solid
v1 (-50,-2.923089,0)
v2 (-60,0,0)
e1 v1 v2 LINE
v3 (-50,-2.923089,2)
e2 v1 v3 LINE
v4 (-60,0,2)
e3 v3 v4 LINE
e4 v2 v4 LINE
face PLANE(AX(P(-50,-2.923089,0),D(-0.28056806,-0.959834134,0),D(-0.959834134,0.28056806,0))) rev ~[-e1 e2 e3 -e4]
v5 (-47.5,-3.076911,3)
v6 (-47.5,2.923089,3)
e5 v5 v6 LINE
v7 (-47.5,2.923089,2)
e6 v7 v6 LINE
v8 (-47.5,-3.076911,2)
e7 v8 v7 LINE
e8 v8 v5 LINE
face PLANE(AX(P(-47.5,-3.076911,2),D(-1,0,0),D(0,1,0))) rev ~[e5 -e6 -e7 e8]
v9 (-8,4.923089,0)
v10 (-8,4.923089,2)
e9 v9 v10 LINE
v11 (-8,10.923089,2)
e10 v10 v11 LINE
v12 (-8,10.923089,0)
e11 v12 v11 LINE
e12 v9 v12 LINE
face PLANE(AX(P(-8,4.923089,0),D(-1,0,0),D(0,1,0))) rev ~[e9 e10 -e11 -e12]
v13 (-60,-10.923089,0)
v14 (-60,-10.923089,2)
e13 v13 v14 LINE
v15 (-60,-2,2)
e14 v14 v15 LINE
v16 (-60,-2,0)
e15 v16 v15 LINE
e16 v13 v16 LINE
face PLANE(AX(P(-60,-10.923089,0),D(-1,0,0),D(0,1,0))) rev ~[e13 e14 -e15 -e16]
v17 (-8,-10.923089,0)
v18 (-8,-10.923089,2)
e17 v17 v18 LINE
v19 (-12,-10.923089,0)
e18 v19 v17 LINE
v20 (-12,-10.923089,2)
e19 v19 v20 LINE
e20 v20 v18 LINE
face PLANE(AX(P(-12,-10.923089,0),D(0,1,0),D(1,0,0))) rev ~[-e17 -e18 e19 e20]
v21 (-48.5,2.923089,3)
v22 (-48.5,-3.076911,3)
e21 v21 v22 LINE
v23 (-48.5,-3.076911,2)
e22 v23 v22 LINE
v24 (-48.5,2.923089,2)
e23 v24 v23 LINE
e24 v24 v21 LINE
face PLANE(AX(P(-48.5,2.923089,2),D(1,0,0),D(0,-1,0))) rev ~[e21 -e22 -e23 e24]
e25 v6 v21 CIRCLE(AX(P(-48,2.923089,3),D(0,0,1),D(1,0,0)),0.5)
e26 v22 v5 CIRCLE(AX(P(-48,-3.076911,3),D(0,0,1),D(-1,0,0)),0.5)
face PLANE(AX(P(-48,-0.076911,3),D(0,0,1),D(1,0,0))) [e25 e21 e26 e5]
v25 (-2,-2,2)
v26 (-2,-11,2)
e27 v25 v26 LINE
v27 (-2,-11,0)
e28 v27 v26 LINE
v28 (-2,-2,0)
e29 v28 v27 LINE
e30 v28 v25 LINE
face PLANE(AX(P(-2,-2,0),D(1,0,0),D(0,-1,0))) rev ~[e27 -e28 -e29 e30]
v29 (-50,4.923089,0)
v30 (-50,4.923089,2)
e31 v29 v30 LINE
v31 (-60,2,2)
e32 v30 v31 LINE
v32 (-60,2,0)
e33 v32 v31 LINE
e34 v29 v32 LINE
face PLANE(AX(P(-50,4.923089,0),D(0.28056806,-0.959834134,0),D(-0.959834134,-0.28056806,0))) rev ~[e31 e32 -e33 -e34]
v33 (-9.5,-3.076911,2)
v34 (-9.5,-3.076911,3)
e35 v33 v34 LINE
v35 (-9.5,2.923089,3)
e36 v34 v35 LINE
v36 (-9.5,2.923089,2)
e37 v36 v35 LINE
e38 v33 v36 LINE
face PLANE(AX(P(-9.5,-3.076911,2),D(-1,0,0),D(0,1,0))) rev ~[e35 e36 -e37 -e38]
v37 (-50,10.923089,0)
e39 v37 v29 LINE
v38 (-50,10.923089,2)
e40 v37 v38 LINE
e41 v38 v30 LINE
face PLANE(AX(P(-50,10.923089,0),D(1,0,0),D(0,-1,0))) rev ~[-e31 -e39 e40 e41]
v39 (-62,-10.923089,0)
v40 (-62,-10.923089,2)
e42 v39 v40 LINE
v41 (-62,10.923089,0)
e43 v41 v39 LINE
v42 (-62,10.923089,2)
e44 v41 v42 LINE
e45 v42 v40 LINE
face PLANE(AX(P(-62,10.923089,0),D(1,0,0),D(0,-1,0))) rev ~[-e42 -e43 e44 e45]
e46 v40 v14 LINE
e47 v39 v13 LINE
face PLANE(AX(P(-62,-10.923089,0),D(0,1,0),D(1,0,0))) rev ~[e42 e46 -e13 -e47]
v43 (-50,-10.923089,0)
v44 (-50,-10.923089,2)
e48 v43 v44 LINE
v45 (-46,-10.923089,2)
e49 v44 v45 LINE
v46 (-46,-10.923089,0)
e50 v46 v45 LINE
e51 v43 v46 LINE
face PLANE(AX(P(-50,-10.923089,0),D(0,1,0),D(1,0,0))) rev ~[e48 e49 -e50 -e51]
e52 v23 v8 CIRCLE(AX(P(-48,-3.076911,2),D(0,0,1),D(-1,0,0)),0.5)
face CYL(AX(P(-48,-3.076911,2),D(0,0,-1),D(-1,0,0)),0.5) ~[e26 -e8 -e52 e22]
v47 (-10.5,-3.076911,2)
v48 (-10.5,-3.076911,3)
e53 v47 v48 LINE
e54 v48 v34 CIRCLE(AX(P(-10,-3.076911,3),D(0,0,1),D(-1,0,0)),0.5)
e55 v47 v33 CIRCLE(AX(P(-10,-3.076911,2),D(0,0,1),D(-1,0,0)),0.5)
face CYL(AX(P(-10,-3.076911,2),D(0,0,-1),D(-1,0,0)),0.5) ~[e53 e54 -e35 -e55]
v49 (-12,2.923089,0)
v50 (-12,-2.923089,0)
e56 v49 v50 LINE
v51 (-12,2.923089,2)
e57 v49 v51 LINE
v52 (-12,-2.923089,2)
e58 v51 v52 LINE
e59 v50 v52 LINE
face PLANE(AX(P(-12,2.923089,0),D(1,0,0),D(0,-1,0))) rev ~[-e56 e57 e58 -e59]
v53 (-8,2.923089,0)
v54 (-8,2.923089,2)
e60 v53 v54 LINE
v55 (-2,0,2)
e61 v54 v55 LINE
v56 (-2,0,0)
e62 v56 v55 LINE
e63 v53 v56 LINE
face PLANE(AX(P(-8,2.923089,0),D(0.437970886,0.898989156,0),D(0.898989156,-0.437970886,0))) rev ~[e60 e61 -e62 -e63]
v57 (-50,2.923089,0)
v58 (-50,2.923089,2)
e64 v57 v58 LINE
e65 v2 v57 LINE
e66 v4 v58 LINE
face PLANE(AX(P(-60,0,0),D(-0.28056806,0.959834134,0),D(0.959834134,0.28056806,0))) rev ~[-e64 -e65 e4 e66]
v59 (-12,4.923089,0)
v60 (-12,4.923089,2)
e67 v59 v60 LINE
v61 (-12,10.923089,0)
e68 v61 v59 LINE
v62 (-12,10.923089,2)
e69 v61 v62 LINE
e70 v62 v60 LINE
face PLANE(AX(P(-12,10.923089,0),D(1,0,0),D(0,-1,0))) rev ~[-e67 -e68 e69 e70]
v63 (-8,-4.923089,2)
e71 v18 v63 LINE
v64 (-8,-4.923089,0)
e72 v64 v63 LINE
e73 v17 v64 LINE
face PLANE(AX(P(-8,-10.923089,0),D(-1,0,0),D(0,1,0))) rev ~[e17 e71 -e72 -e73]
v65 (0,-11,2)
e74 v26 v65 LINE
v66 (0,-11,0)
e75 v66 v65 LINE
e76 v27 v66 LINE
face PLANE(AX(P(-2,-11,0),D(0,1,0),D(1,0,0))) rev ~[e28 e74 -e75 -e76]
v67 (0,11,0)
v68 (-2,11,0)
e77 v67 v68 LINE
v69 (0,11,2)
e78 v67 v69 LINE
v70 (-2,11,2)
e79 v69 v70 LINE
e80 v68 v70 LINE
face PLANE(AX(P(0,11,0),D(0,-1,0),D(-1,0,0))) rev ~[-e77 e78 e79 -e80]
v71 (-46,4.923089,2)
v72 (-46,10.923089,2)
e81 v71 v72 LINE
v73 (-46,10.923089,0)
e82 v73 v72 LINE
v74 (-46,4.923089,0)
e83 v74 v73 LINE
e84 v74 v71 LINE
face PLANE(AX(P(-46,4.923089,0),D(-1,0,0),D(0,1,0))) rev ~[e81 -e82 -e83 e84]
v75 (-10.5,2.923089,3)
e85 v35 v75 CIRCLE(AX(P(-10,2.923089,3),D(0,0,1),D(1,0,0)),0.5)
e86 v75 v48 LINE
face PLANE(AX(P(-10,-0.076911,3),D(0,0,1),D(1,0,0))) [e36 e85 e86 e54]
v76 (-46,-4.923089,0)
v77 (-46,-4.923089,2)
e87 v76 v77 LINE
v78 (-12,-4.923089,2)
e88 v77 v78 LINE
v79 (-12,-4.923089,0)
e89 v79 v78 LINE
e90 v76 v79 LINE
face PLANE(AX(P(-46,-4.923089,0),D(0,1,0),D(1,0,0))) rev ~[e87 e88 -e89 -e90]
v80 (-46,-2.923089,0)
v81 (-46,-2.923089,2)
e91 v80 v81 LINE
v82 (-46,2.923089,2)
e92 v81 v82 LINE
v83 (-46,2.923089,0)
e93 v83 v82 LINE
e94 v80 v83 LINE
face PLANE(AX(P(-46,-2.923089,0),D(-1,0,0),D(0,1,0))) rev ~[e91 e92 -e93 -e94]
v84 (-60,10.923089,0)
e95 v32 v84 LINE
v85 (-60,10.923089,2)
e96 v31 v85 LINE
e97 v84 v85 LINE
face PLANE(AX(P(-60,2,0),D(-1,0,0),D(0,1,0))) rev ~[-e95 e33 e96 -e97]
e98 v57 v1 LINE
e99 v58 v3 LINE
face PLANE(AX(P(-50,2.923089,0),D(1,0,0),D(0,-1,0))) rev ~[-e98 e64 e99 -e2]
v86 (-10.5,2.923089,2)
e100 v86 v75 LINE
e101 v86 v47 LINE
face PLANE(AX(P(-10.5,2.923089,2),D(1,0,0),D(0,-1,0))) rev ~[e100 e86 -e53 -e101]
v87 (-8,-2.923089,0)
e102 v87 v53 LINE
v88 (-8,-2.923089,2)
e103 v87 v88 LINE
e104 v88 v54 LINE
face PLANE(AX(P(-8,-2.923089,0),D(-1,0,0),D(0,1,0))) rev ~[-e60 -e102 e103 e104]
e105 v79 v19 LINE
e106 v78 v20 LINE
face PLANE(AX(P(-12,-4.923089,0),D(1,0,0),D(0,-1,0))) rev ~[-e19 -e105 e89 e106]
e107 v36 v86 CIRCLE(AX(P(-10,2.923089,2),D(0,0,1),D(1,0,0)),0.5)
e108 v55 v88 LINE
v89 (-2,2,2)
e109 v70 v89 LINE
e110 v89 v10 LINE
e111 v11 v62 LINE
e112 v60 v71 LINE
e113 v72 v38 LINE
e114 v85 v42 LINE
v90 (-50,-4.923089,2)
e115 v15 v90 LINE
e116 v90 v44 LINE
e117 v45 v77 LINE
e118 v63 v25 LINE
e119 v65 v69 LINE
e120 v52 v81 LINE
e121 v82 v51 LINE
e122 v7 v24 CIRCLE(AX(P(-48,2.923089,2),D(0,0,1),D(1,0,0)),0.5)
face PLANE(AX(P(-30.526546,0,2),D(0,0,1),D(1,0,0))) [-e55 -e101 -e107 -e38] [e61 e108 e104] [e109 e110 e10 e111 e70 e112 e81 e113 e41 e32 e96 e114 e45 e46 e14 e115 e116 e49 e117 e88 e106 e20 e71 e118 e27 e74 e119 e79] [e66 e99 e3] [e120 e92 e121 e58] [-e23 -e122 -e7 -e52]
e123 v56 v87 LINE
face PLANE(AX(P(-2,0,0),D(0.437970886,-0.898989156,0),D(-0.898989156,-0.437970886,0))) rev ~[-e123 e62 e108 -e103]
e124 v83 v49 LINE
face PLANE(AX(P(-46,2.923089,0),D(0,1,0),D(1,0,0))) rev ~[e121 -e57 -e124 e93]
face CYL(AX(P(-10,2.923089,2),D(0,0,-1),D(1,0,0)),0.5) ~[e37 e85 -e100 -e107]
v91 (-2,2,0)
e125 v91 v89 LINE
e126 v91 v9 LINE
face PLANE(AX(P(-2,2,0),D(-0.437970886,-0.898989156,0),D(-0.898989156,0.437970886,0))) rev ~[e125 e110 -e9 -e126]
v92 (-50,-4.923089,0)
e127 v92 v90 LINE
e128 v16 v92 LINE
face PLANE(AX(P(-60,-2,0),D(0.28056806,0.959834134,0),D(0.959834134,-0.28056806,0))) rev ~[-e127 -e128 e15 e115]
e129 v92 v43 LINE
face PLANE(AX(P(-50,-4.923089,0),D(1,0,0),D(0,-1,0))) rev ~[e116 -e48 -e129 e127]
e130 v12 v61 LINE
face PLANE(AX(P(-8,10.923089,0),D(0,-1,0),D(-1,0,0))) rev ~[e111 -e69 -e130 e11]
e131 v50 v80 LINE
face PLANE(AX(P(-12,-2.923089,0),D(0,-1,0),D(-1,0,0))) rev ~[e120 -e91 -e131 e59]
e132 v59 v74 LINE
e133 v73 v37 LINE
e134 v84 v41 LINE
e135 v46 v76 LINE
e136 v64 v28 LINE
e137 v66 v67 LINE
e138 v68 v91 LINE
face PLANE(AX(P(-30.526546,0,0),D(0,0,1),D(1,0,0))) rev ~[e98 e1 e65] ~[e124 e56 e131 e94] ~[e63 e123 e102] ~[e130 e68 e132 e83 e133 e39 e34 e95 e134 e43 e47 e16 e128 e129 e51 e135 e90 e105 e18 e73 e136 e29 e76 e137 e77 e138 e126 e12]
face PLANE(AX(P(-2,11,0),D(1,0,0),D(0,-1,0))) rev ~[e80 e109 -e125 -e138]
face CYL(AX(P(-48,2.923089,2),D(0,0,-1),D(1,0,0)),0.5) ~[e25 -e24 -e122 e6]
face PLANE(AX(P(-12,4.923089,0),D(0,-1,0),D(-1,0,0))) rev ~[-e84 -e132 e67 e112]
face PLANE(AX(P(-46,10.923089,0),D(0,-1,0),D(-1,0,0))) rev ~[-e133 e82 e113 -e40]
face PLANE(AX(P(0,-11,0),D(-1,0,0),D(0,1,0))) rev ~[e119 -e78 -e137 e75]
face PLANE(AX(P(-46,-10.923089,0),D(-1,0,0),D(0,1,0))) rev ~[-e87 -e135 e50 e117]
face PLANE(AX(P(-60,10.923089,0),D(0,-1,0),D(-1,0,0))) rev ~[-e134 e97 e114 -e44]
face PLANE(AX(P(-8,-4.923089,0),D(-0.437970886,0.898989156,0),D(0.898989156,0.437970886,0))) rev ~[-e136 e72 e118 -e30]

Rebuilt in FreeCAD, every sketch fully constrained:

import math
import FreeCAD as App
import Part
import Sketcher
from FreeCAD import Vector
Q = App.Units.Quantity

doc = App.newDocument("Part")
body = doc.addObject("PartDesign::Body", "Body")

# Sketch on XY plane
sketch1 = body.newObject("Sketcher::SketchObject", "Sketch")
sketch1.AttachmentSupport = (doc.getObject("XY_Plane"), [""])
sketch1.MapMode = "FlatFace"
sketch1.addGeometry([
    Part.LineSegment(Vector(0, -11, 0), Vector(0, 11, 0)),  # 0
    Part.LineSegment(Vector(0, 11, 0), Vector(-2, 11, 0)),  # 1
    Part.LineSegment(Vector(-2, 11, 0), Vector(-2, 2, 0)),  # 2
    Part.LineSegment(Vector(-2, 2, 0), Vector(-8, 4.923089, 0)),  # 3
    Part.LineSegment(Vector(-8, 4.923089, 0), Vector(-8, 10.923089, 0)),  # 4
    Part.LineSegment(Vector(-8, 10.923089, 0), Vector(-12, 10.923089, 0)),  # 5
    Part.LineSegment(Vector(-12, 10.923089, 0), Vector(-12, 4.923089, 0)),  # 6
    Part.LineSegment(Vector(-12, 4.923089, 0), Vector(-46, 4.923089, 0)),  # 7
    Part.LineSegment(Vector(-46, 4.923089, 0), Vector(-46, 10.923089, 0)),  # 8
    Part.LineSegment(Vector(-46, 10.923089, 0), Vector(-50, 10.923089, 0)),  # 9
    Part.LineSegment(Vector(-50, 10.923089, 0), Vector(-50, 4.923089, 0)),  # 10
    Part.LineSegment(Vector(-50, 4.923089, 0), Vector(-60, 2, 0)),  # 11
    Part.LineSegment(Vector(-60, 2, 0), Vector(-60, 10.923089, 0)),  # 12
    Part.LineSegment(Vector(-60, 10.923089, 0), Vector(-62, 10.923089, 0)),  # 13
    Part.LineSegment(Vector(-62, 10.923089, 0), Vector(-62, -10.923089, 0)),  # 14
    Part.LineSegment(Vector(-62, -10.923089, 0), Vector(-60, -10.923089, 0)),  # 15
    Part.LineSegment(Vector(-60, -10.923089, 0), Vector(-60, -2, 0)),  # 16
    Part.LineSegment(Vector(-60, -2, 0), Vector(-50, -4.923089, 0)),  # 17
    Part.LineSegment(Vector(-50, -4.923089, 0), Vector(-50, -10.923089, 0)),  # 18
    Part.LineSegment(Vector(-50, -10.923089, 0), Vector(-46, -10.923089, 0)),  # 19
    Part.LineSegment(Vector(-46, -10.923089, 0), Vector(-46, -4.923089, 0)),  # 20
    Part.LineSegment(Vector(-46, -4.923089, 0), Vector(-12, -4.923089, 0)),  # 21
    Part.LineSegment(Vector(-12, -4.923089, 0), Vector(-12, -10.923089, 0)),  # 22
    Part.LineSegment(Vector(-12, -10.923089, 0), Vector(-8, -10.923089, 0)),  # 23
    Part.LineSegment(Vector(-8, -10.923089, 0), Vector(-8, -4.923089, 0)),  # 24
    Part.LineSegment(Vector(-8, -4.923089, 0), Vector(-2, -2, 0)),  # 25
    Part.LineSegment(Vector(-2, -2, 0), Vector(-2, -11, 0)),  # 26
    Part.LineSegment(Vector(-2, -11, 0), Vector(0, -11, 0)),  # 27
    Part.LineSegment(Vector(-50, -2.923089, 0), Vector(-60, 0, 0)),  # 28
    Part.LineSegment(Vector(-60, 0, 0), Vector(-50, 2.923089, 0)),  # 29
    Part.LineSegment(Vector(-50, 2.923089, 0), Vector(-50, -2.923089, 0)),  # 30
    Part.LineSegment(Vector(-46, 2.923089, 0), Vector(-12, 2.923089, 0)),  # 31
    Part.LineSegment(Vector(-12, 2.923089, 0), Vector(-12, -2.923089, 0)),  # 32
    Part.LineSegment(Vector(-12, -2.923089, 0), Vector(-46, -2.923089, 0)),  # 33
    Part.LineSegment(Vector(-46, -2.923089, 0), Vector(-46, 2.923089, 0)),  # 34
    Part.LineSegment(Vector(-8, -2.923089, 0), Vector(-8, 2.923089, 0)),  # 35
    Part.LineSegment(Vector(-8, 2.923089, 0), Vector(-2, 0, 0)),  # 36
    Part.LineSegment(Vector(-2, 0, 0), Vector(-8, -2.923089, 0)),  # 37
], False)
sketch1.addConstraint([
    Sketcher.Constraint("Coincident", 0, 2, 1, 1),
    Sketcher.Constraint("Coincident", 1, 2, 2, 1),
    Sketcher.Constraint("Coincident", 2, 2, 3, 1),
    Sketcher.Constraint("Coincident", 3, 2, 4, 1),
    Sketcher.Constraint("Coincident", 4, 2, 5, 1),
    Sketcher.Constraint("Coincident", 5, 2, 6, 1),
    Sketcher.Constraint("Coincident", 6, 2, 7, 1),
    Sketcher.Constraint("Coincident", 7, 2, 8, 1),
    Sketcher.Constraint("Coincident", 8, 2, 9, 1),
    Sketcher.Constraint("Coincident", 9, 2, 10, 1),
    Sketcher.Constraint("Coincident", 10, 2, 11, 1),
    Sketcher.Constraint("Coincident", 11, 2, 12, 1),
    Sketcher.Constraint("Coincident", 12, 2, 13, 1),
    Sketcher.Constraint("Coincident", 13, 2, 14, 1),
    Sketcher.Constraint("Coincident", 14, 2, 15, 1),
    Sketcher.Constraint("Coincident", 15, 2, 16, 1),
    Sketcher.Constraint("Coincident", 16, 2, 17, 1),
    Sketcher.Constraint("Coincident", 17, 2, 18, 1),
    Sketcher.Constraint("Coincident", 18, 2, 19, 1),
    Sketcher.Constraint("Coincident", 19, 2, 20, 1),
    Sketcher.Constraint("Coincident", 20, 2, 21, 1),
    Sketcher.Constraint("Coincident", 21, 2, 22, 1),
    Sketcher.Constraint("Coincident", 22, 2, 23, 1),
    Sketcher.Constraint("Coincident", 23, 2, 24, 1),
    Sketcher.Constraint("Coincident", 24, 2, 25, 1),
    Sketcher.Constraint("Coincident", 25, 2, 26, 1),
    Sketcher.Constraint("Coincident", 26, 2, 27, 1),
    Sketcher.Constraint("Coincident", 27, 2, 0, 1),
    Sketcher.Constraint("Coincident", 28, 2, 29, 1),
    Sketcher.Constraint("Coincident", 29, 2, 30, 1),
    Sketcher.Constraint("Coincident", 30, 2, 28, 1),
    Sketcher.Constraint("Coincident", 31, 2, 32, 1),
    Sketcher.Constraint("Coincident", 32, 2, 33, 1),
    Sketcher.Constraint("Coincident", 33, 2, 34, 1),
    Sketcher.Constraint("Coincident", 34, 2, 31, 1),
    Sketcher.Constraint("Coincident", 35, 2, 36, 1),
    Sketcher.Constraint("Coincident", 36, 2, 37, 1),
    Sketcher.Constraint("Coincident", 37, 2, 35, 1),
    Sketcher.Constraint("Vertical", 0),
    Sketcher.Constraint("Horizontal", 1),
    Sketcher.Constraint("Vertical", 2),
    Sketcher.Constraint("Vertical", 4),
    Sketcher.Constraint("Horizontal", 5),
    Sketcher.Constraint("Vertical", 6),
    Sketcher.Constraint("Horizontal", 7),
    Sketcher.Constraint("Vertical", 8),
    Sketcher.Constraint("Horizontal", 9),
    Sketcher.Constraint("Vertical", 10),
    Sketcher.Constraint("Vertical", 12),
    Sketcher.Constraint("Horizontal", 13),
    Sketcher.Constraint("Vertical", 14),
    Sketcher.Constraint("Horizontal", 15),
    Sketcher.Constraint("Vertical", 16),
    Sketcher.Constraint("Vertical", 18),
    Sketcher.Constraint("Horizontal", 19),
    Sketcher.Constraint("Vertical", 20),
    Sketcher.Constraint("Horizontal", 21),
    Sketcher.Constraint("Vertical", 22),
    Sketcher.Constraint("Horizontal", 23),
    Sketcher.Constraint("Vertical", 24),
    Sketcher.Constraint("Vertical", 26),
    Sketcher.Constraint("Horizontal", 27),
    Sketcher.Constraint("Vertical", 30),
    Sketcher.Constraint("Horizontal", 31),
    Sketcher.Constraint("Vertical", 32),
    Sketcher.Constraint("Horizontal", 33),
    Sketcher.Constraint("Vertical", 34),
    Sketcher.Constraint("Vertical", 35),
    Sketcher.Constraint("Symmetric", 0, 2, 27, 2, -1, 1),
    Sketcher.Constraint("Symmetric", 12, 2, 15, 2, -1),
    Sketcher.Constraint("Symmetric", 10, 2, 17, 2, -1),
    Sketcher.Constraint("Symmetric", 8, 2, 19, 2, -1),
    Sketcher.Constraint("Symmetric", 6, 2, 21, 2, -1),
    Sketcher.Constraint("Symmetric", 4, 2, 23, 2, -1),
    Sketcher.Constraint("Symmetric", 2, 2, 25, 2, -1),
    Sketcher.Constraint("PointOnObject", 28, 2, -1),
    Sketcher.Constraint("PointOnObject", 36, 2, -1),
    Sketcher.Constraint("Parallel", 17, 28),
    Sketcher.Constraint("Parallel", 11, 29),
    Sketcher.Constraint("Parallel", 3, 36),
    Sketcher.Constraint("Parallel", 25, 37),
    Sketcher.Constraint("Horizontal", 3, 2, 6, 2),
    Sketcher.Constraint("Horizontal", 5, 2, 8, 2),
    Sketcher.Constraint("Horizontal", 7, 2, 10, 2),
    Sketcher.Constraint("Horizontal", 2, 2, 11, 2),
    Sketcher.Constraint("Horizontal", 9, 2, 12, 2),
    Sketcher.Constraint("Horizontal", 21, 2, 24, 2),
    Sketcher.Constraint("Horizontal", 16, 2, 25, 2),
    Sketcher.Constraint("Horizontal", 29, 2, 31, 2),
    Sketcher.Constraint("Horizontal", 30, 2, 32, 2),
    Sketcher.Constraint("Horizontal", 34, 2, 35, 2),
    Sketcher.Constraint("Vertical", 16, 2, 28, 2),
    Sketcher.Constraint("Vertical", 18, 2, 29, 2),
    Sketcher.Constraint("Vertical", 22, 2, 31, 2),
    Sketcher.Constraint("Vertical", 20, 2, 33, 2),
    Sketcher.Constraint("Vertical", 24, 2, 35, 2),
    Sketcher.Constraint("Equal", 5, 9),
    Sketcher.Constraint("Equal", 1, 13),
    Sketcher.Constraint("DistanceX", 1, 2, 1, 1, Q("2 mm")),
    Sketcher.Constraint("DistanceX", 5, 2, 5, 1, Q("4 mm")),
    Sketcher.Constraint("DistanceX", 7, 2, 7, 1, Q("34 mm")),
    Sketcher.Constraint("DistanceY", 0, 1, 0, 2, Q("22 mm")),
    Sketcher.Constraint("DistanceY", 2, 2, 2, 1, Q("9 mm")),
    Sketcher.Constraint("DistanceY", 4, 1, 4, 2, Q("6 mm")),
    Sketcher.Constraint("DistanceX", 3, 2, -1, 1, Q("8 mm")),
    Sketcher.Constraint("DistanceX", 11, 2, -1, 1, Q("60 mm")),
    Sketcher.Constraint("DistanceY", 12, 1, 12, 2, Q("8.923089 mm")),
])
pad1 = body.newObject("PartDesign::Pad", "Pad")
pad1.Profile = sketch1
pad1.Length = 2

# Sketch on XY plane
sketch2 = body.newObject("Sketcher::SketchObject", "Sketch001")
sketch2.AttachmentSupport = (doc.getObject("XY_Plane"), [""])
sketch2.MapMode = "FlatFace"
sketch2.AttachmentOffset = App.Placement(Vector(0, 0, 2), App.Rotation())
sketch2.addGeometry([
    Part.LineSegment(Vector(-47.5, -3.076911, 0), Vector(-47.5, 2.923089, 0)),  # 0
    Part.ArcOfCircle(Part.Circle(Vector(-48, 2.923089, 0), Vector(0, 0, 1), 0.5), math.radians(0), math.radians(180)),  # 1
    Part.LineSegment(Vector(-48.5, 2.923089, 0), Vector(-48.5, -3.076911, 0)),  # 2
    Part.ArcOfCircle(Part.Circle(Vector(-48, -3.076911, 0), Vector(0, 0, 1), 0.5), math.radians(180), math.radians(360)),  # 3
    Part.LineSegment(Vector(-9.5, -3.076911, 0), Vector(-9.5, 2.923089, 0)),  # 4
    Part.ArcOfCircle(Part.Circle(Vector(-10, 2.923089, 0), Vector(0, 0, 1), 0.5), math.radians(0), math.radians(180)),  # 5
    Part.LineSegment(Vector(-10.5, 2.923089, 0), Vector(-10.5, -3.076911, 0)),  # 6
    Part.ArcOfCircle(Part.Circle(Vector(-10, -3.076911, 0), Vector(0, 0, 1), 0.5), math.radians(180), math.radians(360)),  # 7
], False)
sketch2.addConstraint([
    Sketcher.Constraint("Tangent", 0, 2, 1, 1),
    Sketcher.Constraint("Tangent", 1, 2, 2, 1),
    Sketcher.Constraint("Tangent", 2, 2, 3, 1),
    Sketcher.Constraint("Tangent", 3, 2, 0, 1),
    Sketcher.Constraint("Tangent", 4, 2, 5, 1),
    Sketcher.Constraint("Tangent", 5, 2, 6, 1),
    Sketcher.Constraint("Tangent", 6, 2, 7, 1),
    Sketcher.Constraint("Tangent", 7, 2, 4, 1),
    Sketcher.Constraint("Vertical", 0),
    Sketcher.Constraint("Vertical", 2),
    Sketcher.Constraint("Vertical", 4),
    Sketcher.Constraint("Vertical", 6),
    Sketcher.Constraint("Equal", 3, 5),
    Sketcher.Constraint("Horizontal", 1, 3, 5, 3),
    Sketcher.Constraint("Horizontal", 3, 3, 7, 3),
    Sketcher.Constraint("Radius", 1, Q("0.5 mm")),
    Sketcher.Constraint("DistanceY", 0, 1, 0, 2, Q("6 mm")),
    Sketcher.Constraint("DistanceX", 1, 3, -1, 1, Q("48 mm")),
    Sketcher.Constraint("DistanceX", 5, 3, -1, 1, Q("10 mm")),
    Sketcher.Constraint("DistanceY", -1, 1, 1, 3, Q("2.923089 mm")),
])
pad2 = body.newObject("PartDesign::Pad", "Pad001")
pad2.Profile = sketch2
pad2.Length = 1

doc.recompute()
